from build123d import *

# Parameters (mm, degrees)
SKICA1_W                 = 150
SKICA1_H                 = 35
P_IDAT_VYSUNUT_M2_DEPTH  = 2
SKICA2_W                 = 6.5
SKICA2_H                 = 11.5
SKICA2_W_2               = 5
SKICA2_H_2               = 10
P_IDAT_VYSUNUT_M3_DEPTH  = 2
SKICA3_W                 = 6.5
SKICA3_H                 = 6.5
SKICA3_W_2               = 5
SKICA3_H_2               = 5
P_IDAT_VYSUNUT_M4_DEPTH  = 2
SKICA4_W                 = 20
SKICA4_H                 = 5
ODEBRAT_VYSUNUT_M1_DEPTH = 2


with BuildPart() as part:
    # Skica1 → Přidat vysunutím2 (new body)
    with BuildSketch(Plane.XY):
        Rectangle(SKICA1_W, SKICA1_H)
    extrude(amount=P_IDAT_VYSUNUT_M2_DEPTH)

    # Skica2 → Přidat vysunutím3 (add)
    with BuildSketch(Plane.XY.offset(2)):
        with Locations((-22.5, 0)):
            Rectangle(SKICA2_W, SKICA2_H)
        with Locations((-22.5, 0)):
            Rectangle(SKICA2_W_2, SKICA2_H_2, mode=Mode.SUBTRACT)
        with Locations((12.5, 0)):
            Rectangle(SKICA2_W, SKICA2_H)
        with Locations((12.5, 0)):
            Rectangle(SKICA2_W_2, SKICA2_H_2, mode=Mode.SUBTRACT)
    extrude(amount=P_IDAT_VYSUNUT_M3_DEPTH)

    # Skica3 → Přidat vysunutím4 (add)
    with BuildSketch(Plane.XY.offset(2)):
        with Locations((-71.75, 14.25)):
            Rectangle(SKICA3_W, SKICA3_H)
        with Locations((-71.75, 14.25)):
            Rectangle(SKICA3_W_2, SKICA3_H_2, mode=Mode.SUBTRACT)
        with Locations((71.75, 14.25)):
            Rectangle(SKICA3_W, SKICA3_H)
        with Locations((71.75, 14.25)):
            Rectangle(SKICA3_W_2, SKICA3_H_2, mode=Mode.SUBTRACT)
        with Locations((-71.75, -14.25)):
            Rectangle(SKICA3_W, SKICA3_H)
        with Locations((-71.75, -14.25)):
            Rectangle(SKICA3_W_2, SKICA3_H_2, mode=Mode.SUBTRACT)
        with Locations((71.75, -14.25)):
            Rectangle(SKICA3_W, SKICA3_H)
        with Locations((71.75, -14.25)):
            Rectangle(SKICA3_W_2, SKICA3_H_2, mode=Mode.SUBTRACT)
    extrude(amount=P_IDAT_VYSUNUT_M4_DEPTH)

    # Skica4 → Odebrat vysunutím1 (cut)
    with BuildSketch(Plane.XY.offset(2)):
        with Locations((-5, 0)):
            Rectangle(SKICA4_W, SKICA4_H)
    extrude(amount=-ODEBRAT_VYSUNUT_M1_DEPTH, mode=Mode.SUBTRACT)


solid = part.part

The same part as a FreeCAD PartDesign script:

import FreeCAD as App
import Part
import Sketcher
from FreeCAD import Vector


def add_polygon(sketch, points):
    """Adds a closed chain of lines whose ends are joined by coincident constraints."""
    first, n = sketch.GeometryCount, len(points)
    for a, b in zip(points, points[1:] + points[:1]):
        sketch.addGeometry(Part.LineSegment(App.Vector(*a, 0), App.Vector(*b, 0)), False)
    for i in range(n):
        sketch.addConstraint(Sketcher.Constraint("Coincident", first + i, 2, first + (i + 1) % n, 1))

doc = App.newDocument("Part")
body = doc.addObject("PartDesign::Body", "Body")

sketch1 = doc.addObject("Sketcher::SketchObject", "Sketch")
body.addObject(sketch1)
sketch1.AttachmentSupport = (doc.XY_Plane, [""])
sketch1.MapMode = "FlatFace"
add_polygon(sketch1, [(-75, 17.5), (-75, -17.5), (75, -17.5), (75, 17.5)])
sketch1.addConstraint(Sketcher.Constraint("Vertical", 0))
sketch1.addConstraint(Sketcher.Constraint("Horizontal", 1))
sketch1.addConstraint(Sketcher.Constraint("Vertical", 2))
sketch1.addConstraint(Sketcher.Constraint("Horizontal", 3))
sketch1.addConstraint(Sketcher.Constraint("Symmetric", 0, 2, 2, 2, -1, 1))
sketch1.addConstraint(Sketcher.Constraint("DistanceX", 1, 1, 1, 2, 150.0))
sketch1.addConstraint(Sketcher.Constraint("DistanceY", 0, 2, 0, 1, 35.0))
pad1 = doc.addObject("PartDesign::Pad", "Pad")
body.addObject(pad1)
pad1.Profile = sketch1
pad1.Length = 2

sketch2 = doc.addObject("Sketcher::SketchObject", "Sketch001")
body.addObject(sketch2)
sketch2.AttachmentSupport = (doc.XY_Plane, [""])
sketch2.MapMode = "FlatFace"
sketch2.AttachmentOffset = App.Placement(Vector(0, 0, 2), App.Rotation())
add_polygon(sketch2, [(-25.75, 5.75), (-25.75, -5.75), (-19.25, -5.75), (-19.25, 5.75)])
add_polygon(sketch2, [(-20, -5), (-25, -5), (-25, 5), (-20, 5)])
add_polygon(sketch2, [(9.25, 5.75), (9.25, -5.75), (15.75, -5.75), (15.75, 5.75)])
add_polygon(sketch2, [(15, -5), (10, -5), (10, 5), (15, 5)])
sketch2.addConstraint(Sketcher.Constraint("Vertical", 0))
sketch2.addConstraint(Sketcher.Constraint("Horizontal", 1))
sketch2.addConstraint(Sketcher.Constraint("Vertical", 2))
sketch2.addConstraint(Sketcher.Constraint("Horizontal", 3))
sketch2.addConstraint(Sketcher.Constraint("Horizontal", 4))
sketch2.addConstraint(Sketcher.Constraint("Vertical", 5))
sketch2.addConstraint(Sketcher.Constraint("Horizontal", 6))
sketch2.addConstraint(Sketcher.Constraint("Vertical", 7))
sketch2.addConstraint(Sketcher.Constraint("Vertical", 8))
sketch2.addConstraint(Sketcher.Constraint("Horizontal", 9))
sketch2.addConstraint(Sketcher.Constraint("Vertical", 10))
sketch2.addConstraint(Sketcher.Constraint("Horizontal", 11))
sketch2.addConstraint(Sketcher.Constraint("Horizontal", 12))
sketch2.addConstraint(Sketcher.Constraint("Vertical", 13))
sketch2.addConstraint(Sketcher.Constraint("Horizontal", 14))
sketch2.addConstraint(Sketcher.Constraint("Vertical", 15))
sketch2.addConstraint(Sketcher.Constraint("Horizontal", 1, 2, 8, 2))
sketch2.addConstraint(Sketcher.Constraint("Horizontal", 3, 2, 10, 2))
sketch2.addConstraint(Sketcher.Constraint("Horizontal", 7, 2, 12, 2))
sketch2.addConstraint(Sketcher.Constraint("Horizontal", 6, 2, 13, 2))
sketch2.addConstraint(Sketcher.Constraint("Equal", 3, 9))
sketch2.addConstraint(Sketcher.Constraint("Equal", 6, 12))
sketch2.addConstraint(Sketcher.Constraint("DistanceX", 4, 2, 4, 1, 5.0))
sketch2.addConstraint(Sketcher.Constraint("DistanceY", 5, 1, 5, 2, 10.0))
sketch2.addConstraint(Sketcher.Constraint("DistanceX", 1, 1, 1, 2, 6.5))
sketch2.addConstraint(Sketcher.Constraint("DistanceY", 0, 2, 0, 1, 11.5))
sketch2.addConstraint(Sketcher.Constraint("DistanceX", 4, 2, -1, 1, 25.0))
sketch2.addConstraint(Sketcher.Constraint("DistanceY", 4, 2, -1, 1, 5.0))
sketch2.addConstraint(Sketcher.Constraint("DistanceX", -1, 1, 12, 2, 10.0))
sketch2.addConstraint(Sketcher.Constraint("DistanceX", 1, 2, 9, 2, 35.0))
sketch2.addConstraint(Sketcher.Constraint("DistanceX", 0, 2, -1, 1, 25.75))
sketch2.addConstraint(Sketcher.Constraint("DistanceY", 0, 2, -1, 1, 5.75))
pad2 = doc.addObject("PartDesign::Pad", "Pad001")
body.addObject(pad2)
pad2.Profile = sketch2
pad2.Length = 2

sketch3 = doc.addObject("Sketcher::SketchObject", "Sketch002")
body.addObject(sketch3)
sketch3.AttachmentSupport = (doc.XY_Plane, [""])
sketch3.MapMode = "FlatFace"
sketch3.AttachmentOffset = App.Placement(Vector(0, 0, 2), App.Rotation())
add_polygon(sketch3, [(-75, 17.5), (-75, 11), (-68.5, 11), (-68.5, 17.5)])
add_polygon(sketch3, [(-69.25, 11.75), (-74.25, 11.75), (-74.25, 16.75), (-69.25, 16.75)])
add_polygon(sketch3, [(68.5, 17.5), (68.5, 11), (75, 11), (75, 17.5)])
add_polygon(sketch3, [(74.25, 11.75), (69.25, 11.75), (69.25, 16.75), (74.25, 16.75)])
add_polygon(sketch3, [(-75, -11), (-75, -17.5), (-68.5, -17.5), (-68.5, -11)])
add_polygon(sketch3, [(-69.25, -16.75), (-74.25, -16.75), (-74.25, -11.75), (-69.25, -11.75)])
add_polygon(sketch3, [(68.5, -11), (68.5, -17.5), (75, -17.5), (75, -11)])
add_polygon(sketch3, [(74.25, -16.75), (69.25, -16.75), (69.25, -11.75), (74.25, -11.75)])
sketch3.addConstraint(Sketcher.Constraint("Vertical", 0))
sketch3.addConstraint(Sketcher.Constraint("Horizontal", 1))
sketch3.addConstraint(Sketcher.Constraint("Vertical", 2))
sketch3.addConstraint(Sketcher.Constraint("Horizontal", 3))
sketch3.addConstraint(Sketcher.Constraint("Horizontal", 4))
sketch3.addConstraint(Sketcher.Constraint("Vertical", 5))
sketch3.addConstraint(Sketcher.Constraint("Horizontal", 6))
sketch3.addConstraint(Sketcher.Constraint("Vertical", 7))
sketch3.addConstraint(Sketcher.Constraint("Vertical", 8))
sketch3.addConstraint(Sketcher.Constraint("Horizontal", 9))
sketch3.addConstraint(Sketcher.Constraint("Vertical", 10))
sketch3.addConstraint(Sketcher.Constraint("Horizontal", 11))
sketch3.addConstraint(Sketcher.Constraint("Horizontal", 12))
sketch3.addConstraint(Sketcher.Constraint("Vertical", 13))
sketch3.addConstraint(Sketcher.Constraint("Horizontal", 14))
sketch3.addConstraint(Sketcher.Constraint("Vertical", 15))
sketch3.addConstraint(Sketcher.Constraint("Vertical", 16))
sketch3.addConstraint(Sketcher.Constraint("Horizontal", 17))
sketch3.addConstraint(Sketcher.Constraint("Vertical", 18))
sketch3.addConstraint(Sketcher.Constraint("Horizontal", 19))
sketch3.addConstraint(Sketcher.Constraint("Horizontal", 20))
sketch3.addConstraint(Sketcher.Constraint("Vertical", 21))
sketch3.addConstraint(Sketcher.Constraint("Horizontal", 22))
sketch3.addConstraint(Sketcher.Constraint("Vertical", 23))
sketch3.addConstraint(Sketcher.Constraint("Vertical", 24))
sketch3.addConstraint(Sketcher.Constraint("Horizontal", 25))
sketch3.addConstraint(Sketcher.Constraint("Vertical", 26))
sketch3.addConstraint(Sketcher.Constraint("Horizontal", 27))
sketch3.addConstraint(Sketcher.Constraint("Horizontal", 28))
sketch3.addConstraint(Sketcher.Constraint("Vertical", 29))
sketch3.addConstraint(Sketcher.Constraint("Horizontal", 30))
sketch3.addConstraint(Sketcher.Constraint("Vertical", 31))
sketch3.addConstraint(Sketcher.Constraint("Symmetric", 10, 2, 16, 2, -1, 1))
sketch3.addConstraint(Sketcher.Constraint("Symmetric", 8, 2, 18, 2, -1, 1))
sketch3.addConstraint(Sketcher.Constraint("Symmetric", 14, 2, 20, 2, -1, 1))
sketch3.addConstraint(Sketcher.Constraint("Symmetric", 12, 2, 22, 2, -1, 1))
sketch3.addConstraint(Sketcher.Constraint("Symmetric", 2, 2, 24, 2, -1, 1))
sketch3.addConstraint(Sketcher.Constraint("Symmetric", 0, 2, 26, 2, -1, 1))
sketch3.addConstraint(Sketcher.Constraint("Symmetric", 6, 2, 28, 2, -1, 1))
sketch3.addConstraint(Sketcher.Constraint("Symmetric", 4, 2, 30, 2, -1, 1))
sketch3.addConstraint(Sketcher.Constraint("Symmetric", 1, 2, 8, 2, -2))
sketch3.addConstraint(Sketcher.Constraint("Symmetric", 3, 2, 10, 2, -2))
sketch3.addConstraint(Sketcher.Constraint("Symmetric", 7, 2, 12, 2, -2))
sketch3.addConstraint(Sketcher.Constraint("Symmetric", 5, 2, 14, 2, -2))
sketch3.addConstraint(Sketcher.Constraint("Equal", 27, 0))
sketch3.addConstraint(Sketcher.Constraint("Equal", 30, 5))
sketch3.addConstraint(Sketcher.Constraint("DistanceX", 4, 2, 4, 1, 5.0))
sketch3.addConstraint(Sketcher.Constraint("DistanceX", 1, 1, 1, 2, 6.5))
sketch3.addConstraint(Sketcher.Constraint("DistanceX", 0, 2, -1, 1, 75.0))
sketch3.addConstraint(Sketcher.Constraint("DistanceY", -1, 1, 0, 2, 11.0))
sketch3.addConstraint(Sketcher.Constraint("DistanceX", 4, 2, -1, 1, 74.25))
sketch3.addConstraint(Sketcher.Constraint("DistanceY", -1, 1, 4, 2, 11.75))
pad3 = doc.addObject("PartDesign::Pad", "Pad002")
body.addObject(pad3)
pad3.Profile = sketch3
pad3.Length = 2

sketch4 = doc.addObject("Sketcher::SketchObject", "Sketch003")
body.addObject(sketch4)
sketch4.AttachmentSupport = (doc.XY_Plane, [""])
sketch4.MapMode = "FlatFace"
sketch4.AttachmentOffset = App.Placement(Vector(0, 0, 2), App.Rotation())
add_polygon(sketch4, [(-15, 2.5), (-15, -2.5), (5, -2.5), (5, 2.5)])
sketch4.addConstraint(Sketcher.Constraint("Vertical", 0))
sketch4.addConstraint(Sketcher.Constraint("Horizontal", 1))
sketch4.addConstraint(Sketcher.Constraint("Vertical", 2))
sketch4.addConstraint(Sketcher.Constraint("Horizontal", 3))
sketch4.addConstraint(Sketcher.Constraint("DistanceX", 1, 1, 1, 2, 20.0))
sketch4.addConstraint(Sketcher.Constraint("DistanceY", 0, 2, 0, 1, 5.0))
sketch4.addConstraint(Sketcher.Constraint("DistanceX", 0, 2, -1, 1, 15.0))
sketch4.addConstraint(Sketcher.Constraint("DistanceY", 0, 2, -1, 1, 2.5))
pocket1 = doc.addObject("PartDesign::Pocket", "Pocket")
body.addObject(pocket1)
pocket1.Profile = sketch4
pocket1.Length = 2

doc.recompute()
